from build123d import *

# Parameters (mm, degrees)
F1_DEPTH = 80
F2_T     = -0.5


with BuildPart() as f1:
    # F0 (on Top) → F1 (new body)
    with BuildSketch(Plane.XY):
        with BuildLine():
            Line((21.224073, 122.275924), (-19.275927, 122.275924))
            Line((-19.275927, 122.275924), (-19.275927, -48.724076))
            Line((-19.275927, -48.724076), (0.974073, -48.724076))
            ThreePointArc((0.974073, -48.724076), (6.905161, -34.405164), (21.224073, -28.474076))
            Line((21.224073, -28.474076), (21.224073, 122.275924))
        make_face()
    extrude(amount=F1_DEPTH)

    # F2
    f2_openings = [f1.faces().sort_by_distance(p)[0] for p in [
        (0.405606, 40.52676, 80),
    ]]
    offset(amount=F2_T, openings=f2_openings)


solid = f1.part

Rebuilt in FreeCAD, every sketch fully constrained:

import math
import FreeCAD as App
import Part
import Sketcher

V = App.Vector
Q = App.Units.Quantity


def faces_at(feature, points):
    """Names of the faces that lie closest to the given points."""
    faces = feature.Shape.Faces
    near = lambda p: min(range(len(faces)), key=lambda i: faces[i].distToShape(Part.Vertex(*p))[0])
    return sorted({f"Face{near(p) + 1}" for p in points})

doc = App.newDocument("Part")
params = doc.addObject("Spreadsheet::Sheet", "Params")
for row, (alias, value) in enumerate([
    ("sketch1_height", "171 mm"),
    ("sketch1_radius", "20.250001 mm"),
    ("sketch1_width", "40.5 mm"),
    ("sketch1_width2", "20.25 mm"),
    ("pad1_length", "80 mm"),
    ("thickness_wall", "0.5 mm"),
], start=1):
    params.set(f"A{row}", alias)
    params.set(f"B{row}", "=" + value)
    params.setAlias(f"B{row}", alias)

body = doc.addObject("PartDesign::Body", "Body")

# Sketch on XY plane
sketch1 = doc.addObject("Sketcher::SketchObject", "Sketch")
body.addObject(sketch1)
sketch1.AttachmentSupport = (doc.XY_Plane, [""])
sketch1.MapMode = "FlatFace"
sketch1.addGeometry(Part.LineSegment(V(21, 122, 0), V(-19, 122, 0)), False)
sketch1.addGeometry(Part.LineSegment(V(-19, 122, 0), V(-19, -49, 0)), False)
sketch1.addGeometry(Part.LineSegment(V(-19, -49, 0), V(1, -49, 0)), False)
sketch1.addGeometry(Part.ArcOfCircle(Part.Circle(V(21, -49, 0), V(0, 0, 1), 20), math.radians(90), math.radians(180)), False)
sketch1.addGeometry(Part.LineSegment(V(21, -28, 0), V(21, 122, 0)), False)
sketch1.addConstraint(Sketcher.Constraint("Coincident", 0, 2, 1, 1))
sketch1.addConstraint(Sketcher.Constraint("Coincident", 1, 2, 2, 1))
sketch1.addConstraint(Sketcher.Constraint("Coincident", 2, 2, 3, 2))
sketch1.addConstraint(Sketcher.Constraint("Coincident", 3, 1, 4, 1))
sketch1.addConstraint(Sketcher.Constraint("Coincident", 4, 2, 0, 1))
sketch1.addConstraint(Sketcher.Constraint("Horizontal", 0))
sketch1.addConstraint(Sketcher.Constraint("Vertical", 1))
sketch1.addConstraint(Sketcher.Constraint("Horizontal", 2))
sketch1.addConstraint(Sketcher.Constraint("Vertical", 4))
sketch1.addConstraint(Sketcher.Constraint("Horizontal", 3, 3, 1, 2))
sketch1.addConstraint(Sketcher.Constraint("DistanceY", 1, 2, 1, 1, Q("171 mm")))
sketch1.addConstraint(Sketcher.Constraint("Radius", 3, Q("20.250001 mm")))
sketch1.addConstraint(Sketcher.Constraint("DistanceX", 0, 2, 0, 1, Q("40.5 mm")))
sketch1.addConstraint(Sketcher.Constraint("DistanceX", 2, 1, 2, 2, Q("20.25 mm")))
sketch1.addConstraint(Sketcher.Constraint("DistanceX", -1, 1, 3, 3, Q("21.224074 mm")))
sketch1.addConstraint(Sketcher.Constraint("DistanceY", 3, 3, -1, 1, Q("48.724077 mm")))
sketch1.setExpression("Constraints[10]", "Params.sketch1_height")
sketch1.setExpression("Constraints[11]", "Params.sketch1_radius")
sketch1.setExpression("Constraints[12]", "Params.sketch1_width")
sketch1.setExpression("Constraints[13]", "Params.sketch1_width2")
pad1 = doc.addObject("PartDesign::Pad", "Pad")
body.addObject(pad1)
pad1.Profile = sketch1
pad1.setExpression("Length", "Params.pad1_length")
doc.recompute()

thickness = doc.addObject("PartDesign::Thickness", "Thickness")
body.addObject(thickness)
thickness.Base = (pad1, faces_at(pad1, [(0.974, 36.776, 80)]))
thickness.setExpression("Value", "Params.thickness_wall")
thickness.Reversed = True
thickness.Join = "Arc"

doc.recompute()
